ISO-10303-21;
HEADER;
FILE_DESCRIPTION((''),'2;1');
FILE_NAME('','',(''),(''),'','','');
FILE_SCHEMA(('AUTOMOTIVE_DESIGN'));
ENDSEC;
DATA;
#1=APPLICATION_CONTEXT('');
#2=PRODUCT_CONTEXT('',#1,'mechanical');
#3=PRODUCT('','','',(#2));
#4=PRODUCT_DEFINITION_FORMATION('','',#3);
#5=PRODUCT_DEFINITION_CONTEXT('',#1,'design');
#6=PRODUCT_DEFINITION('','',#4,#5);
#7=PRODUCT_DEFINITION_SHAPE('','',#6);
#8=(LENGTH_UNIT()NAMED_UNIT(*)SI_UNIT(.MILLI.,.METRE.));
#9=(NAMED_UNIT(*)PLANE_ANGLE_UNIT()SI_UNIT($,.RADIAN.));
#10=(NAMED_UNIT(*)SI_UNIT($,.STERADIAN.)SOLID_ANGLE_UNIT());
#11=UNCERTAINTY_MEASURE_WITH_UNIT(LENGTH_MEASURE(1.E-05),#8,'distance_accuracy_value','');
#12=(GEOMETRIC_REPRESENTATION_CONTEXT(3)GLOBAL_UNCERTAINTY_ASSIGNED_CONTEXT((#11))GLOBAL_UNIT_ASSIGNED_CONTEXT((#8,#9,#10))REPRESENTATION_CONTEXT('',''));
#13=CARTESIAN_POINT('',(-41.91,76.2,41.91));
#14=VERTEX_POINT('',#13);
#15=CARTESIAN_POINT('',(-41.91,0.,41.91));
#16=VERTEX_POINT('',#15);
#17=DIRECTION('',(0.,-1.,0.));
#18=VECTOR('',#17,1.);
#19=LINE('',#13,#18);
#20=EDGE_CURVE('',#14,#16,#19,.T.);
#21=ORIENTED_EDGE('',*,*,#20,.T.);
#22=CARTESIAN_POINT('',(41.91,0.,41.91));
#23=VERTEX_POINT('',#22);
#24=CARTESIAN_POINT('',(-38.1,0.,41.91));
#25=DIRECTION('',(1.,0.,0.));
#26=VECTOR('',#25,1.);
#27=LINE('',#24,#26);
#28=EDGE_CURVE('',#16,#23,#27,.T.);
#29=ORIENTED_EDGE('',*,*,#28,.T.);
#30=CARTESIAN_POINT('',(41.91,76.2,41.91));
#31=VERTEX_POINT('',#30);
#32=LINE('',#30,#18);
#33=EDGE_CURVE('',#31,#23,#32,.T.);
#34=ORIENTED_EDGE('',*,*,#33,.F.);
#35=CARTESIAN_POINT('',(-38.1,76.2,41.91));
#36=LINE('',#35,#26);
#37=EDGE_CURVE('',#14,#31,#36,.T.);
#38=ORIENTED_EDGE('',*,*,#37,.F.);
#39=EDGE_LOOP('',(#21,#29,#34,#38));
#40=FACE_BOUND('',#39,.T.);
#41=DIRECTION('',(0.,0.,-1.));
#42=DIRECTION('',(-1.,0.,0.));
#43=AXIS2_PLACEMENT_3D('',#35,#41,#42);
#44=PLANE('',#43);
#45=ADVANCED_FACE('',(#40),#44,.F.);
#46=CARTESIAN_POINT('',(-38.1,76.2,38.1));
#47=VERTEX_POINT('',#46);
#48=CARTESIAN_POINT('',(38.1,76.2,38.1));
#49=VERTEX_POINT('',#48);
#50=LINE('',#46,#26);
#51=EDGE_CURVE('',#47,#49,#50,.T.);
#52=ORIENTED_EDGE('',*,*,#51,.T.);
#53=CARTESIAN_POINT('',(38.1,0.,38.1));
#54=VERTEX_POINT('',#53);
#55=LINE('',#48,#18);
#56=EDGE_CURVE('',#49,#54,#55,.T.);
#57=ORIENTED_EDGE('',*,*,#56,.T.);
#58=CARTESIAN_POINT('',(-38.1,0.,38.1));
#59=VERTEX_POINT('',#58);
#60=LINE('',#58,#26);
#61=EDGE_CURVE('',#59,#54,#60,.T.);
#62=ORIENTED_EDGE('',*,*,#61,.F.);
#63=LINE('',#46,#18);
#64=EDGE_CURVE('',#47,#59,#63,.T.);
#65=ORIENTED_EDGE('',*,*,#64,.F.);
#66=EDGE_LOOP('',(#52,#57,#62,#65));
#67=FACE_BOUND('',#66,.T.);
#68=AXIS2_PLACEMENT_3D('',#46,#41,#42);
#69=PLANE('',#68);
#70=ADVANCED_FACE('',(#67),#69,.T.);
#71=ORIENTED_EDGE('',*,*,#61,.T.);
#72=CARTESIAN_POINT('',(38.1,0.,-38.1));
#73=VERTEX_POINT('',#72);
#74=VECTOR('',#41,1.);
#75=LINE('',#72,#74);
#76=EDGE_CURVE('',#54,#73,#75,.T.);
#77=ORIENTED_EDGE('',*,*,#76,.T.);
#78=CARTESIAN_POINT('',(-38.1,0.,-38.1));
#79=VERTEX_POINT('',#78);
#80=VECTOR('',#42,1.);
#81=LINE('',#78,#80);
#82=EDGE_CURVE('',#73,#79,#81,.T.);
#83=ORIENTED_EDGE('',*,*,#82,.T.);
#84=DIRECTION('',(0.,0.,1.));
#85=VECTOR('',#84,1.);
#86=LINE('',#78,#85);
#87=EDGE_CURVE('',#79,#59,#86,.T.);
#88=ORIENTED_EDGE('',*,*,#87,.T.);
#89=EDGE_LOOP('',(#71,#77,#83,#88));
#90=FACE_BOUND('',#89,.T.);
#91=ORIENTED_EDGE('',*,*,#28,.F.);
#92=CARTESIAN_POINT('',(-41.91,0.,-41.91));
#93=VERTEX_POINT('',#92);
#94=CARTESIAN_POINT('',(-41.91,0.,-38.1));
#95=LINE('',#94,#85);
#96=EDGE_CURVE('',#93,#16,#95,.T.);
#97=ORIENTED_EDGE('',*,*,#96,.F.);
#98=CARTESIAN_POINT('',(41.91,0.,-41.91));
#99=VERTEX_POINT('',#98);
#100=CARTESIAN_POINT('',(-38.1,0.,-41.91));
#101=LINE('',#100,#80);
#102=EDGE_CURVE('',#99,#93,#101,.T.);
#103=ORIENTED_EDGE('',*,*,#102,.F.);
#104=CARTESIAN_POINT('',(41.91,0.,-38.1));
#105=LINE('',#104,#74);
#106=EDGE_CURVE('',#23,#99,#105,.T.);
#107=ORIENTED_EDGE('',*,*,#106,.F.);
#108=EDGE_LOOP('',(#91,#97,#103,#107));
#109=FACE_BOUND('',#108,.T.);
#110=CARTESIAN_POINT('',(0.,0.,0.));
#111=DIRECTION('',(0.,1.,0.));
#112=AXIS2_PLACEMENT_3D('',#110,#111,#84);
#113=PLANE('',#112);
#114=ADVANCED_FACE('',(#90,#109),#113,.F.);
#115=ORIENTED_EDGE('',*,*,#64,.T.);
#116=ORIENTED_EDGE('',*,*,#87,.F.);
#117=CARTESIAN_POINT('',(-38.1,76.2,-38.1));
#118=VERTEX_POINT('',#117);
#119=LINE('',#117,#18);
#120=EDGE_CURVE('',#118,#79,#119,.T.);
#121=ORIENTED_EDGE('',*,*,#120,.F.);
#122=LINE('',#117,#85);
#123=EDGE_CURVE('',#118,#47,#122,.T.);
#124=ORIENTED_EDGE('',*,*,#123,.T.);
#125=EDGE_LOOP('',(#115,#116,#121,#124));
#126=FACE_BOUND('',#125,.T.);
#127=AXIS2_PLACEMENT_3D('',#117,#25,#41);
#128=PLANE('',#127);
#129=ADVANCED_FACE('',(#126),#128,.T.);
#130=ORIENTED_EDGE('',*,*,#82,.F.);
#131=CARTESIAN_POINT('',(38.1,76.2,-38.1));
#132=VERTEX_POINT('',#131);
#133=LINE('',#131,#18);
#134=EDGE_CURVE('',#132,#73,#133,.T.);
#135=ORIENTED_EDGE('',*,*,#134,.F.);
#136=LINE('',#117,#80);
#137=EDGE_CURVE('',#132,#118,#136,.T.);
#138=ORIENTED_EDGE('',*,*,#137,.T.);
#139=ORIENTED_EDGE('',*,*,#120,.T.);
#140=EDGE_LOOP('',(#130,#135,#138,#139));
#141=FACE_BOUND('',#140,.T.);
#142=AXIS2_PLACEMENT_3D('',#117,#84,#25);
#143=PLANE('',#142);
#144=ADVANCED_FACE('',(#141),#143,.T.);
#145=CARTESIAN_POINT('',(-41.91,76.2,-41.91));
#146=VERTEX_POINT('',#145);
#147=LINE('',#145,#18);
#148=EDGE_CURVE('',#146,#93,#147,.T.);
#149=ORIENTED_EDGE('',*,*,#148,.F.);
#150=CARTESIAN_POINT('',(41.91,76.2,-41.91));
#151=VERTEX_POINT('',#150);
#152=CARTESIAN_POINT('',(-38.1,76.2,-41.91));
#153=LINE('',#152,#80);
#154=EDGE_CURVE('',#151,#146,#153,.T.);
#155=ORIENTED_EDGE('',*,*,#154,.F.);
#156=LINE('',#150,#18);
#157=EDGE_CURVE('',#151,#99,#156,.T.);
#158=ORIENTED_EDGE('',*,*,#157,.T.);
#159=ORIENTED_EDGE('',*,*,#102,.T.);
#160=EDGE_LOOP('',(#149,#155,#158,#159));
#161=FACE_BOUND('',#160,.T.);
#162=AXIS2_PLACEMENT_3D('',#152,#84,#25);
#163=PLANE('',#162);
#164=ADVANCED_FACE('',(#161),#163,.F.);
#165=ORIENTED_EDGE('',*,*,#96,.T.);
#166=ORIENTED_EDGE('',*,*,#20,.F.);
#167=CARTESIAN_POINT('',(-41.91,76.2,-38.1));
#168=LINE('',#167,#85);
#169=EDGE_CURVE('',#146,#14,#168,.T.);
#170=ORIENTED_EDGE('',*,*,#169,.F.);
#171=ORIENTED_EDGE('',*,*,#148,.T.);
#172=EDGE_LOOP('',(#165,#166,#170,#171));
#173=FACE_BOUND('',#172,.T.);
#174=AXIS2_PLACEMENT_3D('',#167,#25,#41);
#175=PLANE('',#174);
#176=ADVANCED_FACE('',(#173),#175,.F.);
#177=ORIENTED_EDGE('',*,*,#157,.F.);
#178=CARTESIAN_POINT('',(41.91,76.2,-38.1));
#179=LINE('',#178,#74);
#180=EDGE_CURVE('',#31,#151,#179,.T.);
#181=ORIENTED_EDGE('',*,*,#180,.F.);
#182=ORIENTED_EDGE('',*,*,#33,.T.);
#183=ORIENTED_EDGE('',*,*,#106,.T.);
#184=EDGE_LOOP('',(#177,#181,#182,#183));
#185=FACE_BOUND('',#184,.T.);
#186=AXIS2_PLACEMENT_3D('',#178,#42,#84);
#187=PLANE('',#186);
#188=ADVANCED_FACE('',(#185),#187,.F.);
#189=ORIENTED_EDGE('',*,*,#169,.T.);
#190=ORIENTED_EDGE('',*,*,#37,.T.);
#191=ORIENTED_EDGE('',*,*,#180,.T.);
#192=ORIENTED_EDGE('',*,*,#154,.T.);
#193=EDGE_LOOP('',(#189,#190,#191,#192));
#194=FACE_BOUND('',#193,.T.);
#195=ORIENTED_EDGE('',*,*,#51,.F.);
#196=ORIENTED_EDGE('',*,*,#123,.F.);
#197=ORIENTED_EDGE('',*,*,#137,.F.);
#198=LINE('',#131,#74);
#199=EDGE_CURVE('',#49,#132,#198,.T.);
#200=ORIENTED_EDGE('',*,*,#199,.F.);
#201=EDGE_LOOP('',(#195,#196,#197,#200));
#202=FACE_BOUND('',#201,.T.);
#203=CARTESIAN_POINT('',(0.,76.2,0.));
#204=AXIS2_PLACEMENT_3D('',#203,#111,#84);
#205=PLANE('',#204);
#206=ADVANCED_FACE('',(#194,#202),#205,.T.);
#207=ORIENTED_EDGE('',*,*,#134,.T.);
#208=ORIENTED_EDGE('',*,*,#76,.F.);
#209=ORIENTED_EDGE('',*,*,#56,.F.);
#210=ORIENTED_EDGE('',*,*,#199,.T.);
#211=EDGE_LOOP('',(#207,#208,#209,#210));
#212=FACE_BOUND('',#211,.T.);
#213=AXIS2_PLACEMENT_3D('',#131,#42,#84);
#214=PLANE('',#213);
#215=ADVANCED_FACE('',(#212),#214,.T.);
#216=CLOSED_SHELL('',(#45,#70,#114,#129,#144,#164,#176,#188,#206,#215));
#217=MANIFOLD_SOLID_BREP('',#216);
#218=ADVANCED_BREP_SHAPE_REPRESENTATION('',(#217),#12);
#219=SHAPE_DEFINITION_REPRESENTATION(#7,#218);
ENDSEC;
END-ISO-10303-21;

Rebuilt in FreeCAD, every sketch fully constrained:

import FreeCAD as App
import Part
import Sketcher
from FreeCAD import Vector
Q = App.Units.Quantity


def faces_at(feature, points):
    """Names of the faces that lie closest to the given points."""
    faces = feature.Shape.Faces
    near = lambda p: min(range(len(faces)), key=lambda i: faces[i].distToShape(Part.Vertex(*p))[0])
    return sorted({f"Face{near(p) + 1}" for p in points})


def add_polygon(sketch, points):
    """Adds a closed chain of lines whose ends are joined by coincident constraints."""
    first, n = sketch.GeometryCount, len(points)
    for a, b in zip(points, points[1:] + points[:1]):
        sketch.addGeometry(Part.LineSegment(App.Vector(*a, 0), App.Vector(*b, 0)), False)
    for i in range(n):
        sketch.addConstraint(Sketcher.Constraint("Coincident", first + i, 2, first + (i + 1) % n, 1))

doc = App.newDocument("Part")
body = doc.addObject("PartDesign::Body", "Body")

sketch1 = body.newObject("Sketcher::SketchObject", "Sketch")
sketch1.AttachmentSupport = (doc.getObject("XZ_Plane"), [""])
sketch1.MapMode = "FlatFace"
add_polygon(sketch1, [(-38, -38), (-38, 38), (38, 38), (38, -38)])
sketch1.addConstraint([
    Sketcher.Constraint("Vertical", 0),
    Sketcher.Constraint("Horizontal", 1),
    Sketcher.Constraint("Vertical", 2),
    Sketcher.Constraint("Horizontal", 3),
    Sketcher.Constraint("Symmetric", 0, 2, 2, 2, -1, 1),
    Sketcher.Constraint("Equal", 3, 0),
    Sketcher.Constraint("DistanceX", 1, 1, 1, 2, Q("3 in")),
])
pad1 = body.newObject("PartDesign::Pad", "Pad")
pad1.Profile = sketch1
pad1.Length = Q("3 in")
pad1.Reversed = True
doc.recompute()

thickness = body.newObject("PartDesign::Thickness", "Thickness")
thickness.Base = (pad1, faces_at(pad1, [(0, 0, 0), (0, 76.2, 0)]))
thickness.Value = Q("0.15 in")
thickness.Reversed = False
thickness.Join = "Intersection"

doc.recompute()
